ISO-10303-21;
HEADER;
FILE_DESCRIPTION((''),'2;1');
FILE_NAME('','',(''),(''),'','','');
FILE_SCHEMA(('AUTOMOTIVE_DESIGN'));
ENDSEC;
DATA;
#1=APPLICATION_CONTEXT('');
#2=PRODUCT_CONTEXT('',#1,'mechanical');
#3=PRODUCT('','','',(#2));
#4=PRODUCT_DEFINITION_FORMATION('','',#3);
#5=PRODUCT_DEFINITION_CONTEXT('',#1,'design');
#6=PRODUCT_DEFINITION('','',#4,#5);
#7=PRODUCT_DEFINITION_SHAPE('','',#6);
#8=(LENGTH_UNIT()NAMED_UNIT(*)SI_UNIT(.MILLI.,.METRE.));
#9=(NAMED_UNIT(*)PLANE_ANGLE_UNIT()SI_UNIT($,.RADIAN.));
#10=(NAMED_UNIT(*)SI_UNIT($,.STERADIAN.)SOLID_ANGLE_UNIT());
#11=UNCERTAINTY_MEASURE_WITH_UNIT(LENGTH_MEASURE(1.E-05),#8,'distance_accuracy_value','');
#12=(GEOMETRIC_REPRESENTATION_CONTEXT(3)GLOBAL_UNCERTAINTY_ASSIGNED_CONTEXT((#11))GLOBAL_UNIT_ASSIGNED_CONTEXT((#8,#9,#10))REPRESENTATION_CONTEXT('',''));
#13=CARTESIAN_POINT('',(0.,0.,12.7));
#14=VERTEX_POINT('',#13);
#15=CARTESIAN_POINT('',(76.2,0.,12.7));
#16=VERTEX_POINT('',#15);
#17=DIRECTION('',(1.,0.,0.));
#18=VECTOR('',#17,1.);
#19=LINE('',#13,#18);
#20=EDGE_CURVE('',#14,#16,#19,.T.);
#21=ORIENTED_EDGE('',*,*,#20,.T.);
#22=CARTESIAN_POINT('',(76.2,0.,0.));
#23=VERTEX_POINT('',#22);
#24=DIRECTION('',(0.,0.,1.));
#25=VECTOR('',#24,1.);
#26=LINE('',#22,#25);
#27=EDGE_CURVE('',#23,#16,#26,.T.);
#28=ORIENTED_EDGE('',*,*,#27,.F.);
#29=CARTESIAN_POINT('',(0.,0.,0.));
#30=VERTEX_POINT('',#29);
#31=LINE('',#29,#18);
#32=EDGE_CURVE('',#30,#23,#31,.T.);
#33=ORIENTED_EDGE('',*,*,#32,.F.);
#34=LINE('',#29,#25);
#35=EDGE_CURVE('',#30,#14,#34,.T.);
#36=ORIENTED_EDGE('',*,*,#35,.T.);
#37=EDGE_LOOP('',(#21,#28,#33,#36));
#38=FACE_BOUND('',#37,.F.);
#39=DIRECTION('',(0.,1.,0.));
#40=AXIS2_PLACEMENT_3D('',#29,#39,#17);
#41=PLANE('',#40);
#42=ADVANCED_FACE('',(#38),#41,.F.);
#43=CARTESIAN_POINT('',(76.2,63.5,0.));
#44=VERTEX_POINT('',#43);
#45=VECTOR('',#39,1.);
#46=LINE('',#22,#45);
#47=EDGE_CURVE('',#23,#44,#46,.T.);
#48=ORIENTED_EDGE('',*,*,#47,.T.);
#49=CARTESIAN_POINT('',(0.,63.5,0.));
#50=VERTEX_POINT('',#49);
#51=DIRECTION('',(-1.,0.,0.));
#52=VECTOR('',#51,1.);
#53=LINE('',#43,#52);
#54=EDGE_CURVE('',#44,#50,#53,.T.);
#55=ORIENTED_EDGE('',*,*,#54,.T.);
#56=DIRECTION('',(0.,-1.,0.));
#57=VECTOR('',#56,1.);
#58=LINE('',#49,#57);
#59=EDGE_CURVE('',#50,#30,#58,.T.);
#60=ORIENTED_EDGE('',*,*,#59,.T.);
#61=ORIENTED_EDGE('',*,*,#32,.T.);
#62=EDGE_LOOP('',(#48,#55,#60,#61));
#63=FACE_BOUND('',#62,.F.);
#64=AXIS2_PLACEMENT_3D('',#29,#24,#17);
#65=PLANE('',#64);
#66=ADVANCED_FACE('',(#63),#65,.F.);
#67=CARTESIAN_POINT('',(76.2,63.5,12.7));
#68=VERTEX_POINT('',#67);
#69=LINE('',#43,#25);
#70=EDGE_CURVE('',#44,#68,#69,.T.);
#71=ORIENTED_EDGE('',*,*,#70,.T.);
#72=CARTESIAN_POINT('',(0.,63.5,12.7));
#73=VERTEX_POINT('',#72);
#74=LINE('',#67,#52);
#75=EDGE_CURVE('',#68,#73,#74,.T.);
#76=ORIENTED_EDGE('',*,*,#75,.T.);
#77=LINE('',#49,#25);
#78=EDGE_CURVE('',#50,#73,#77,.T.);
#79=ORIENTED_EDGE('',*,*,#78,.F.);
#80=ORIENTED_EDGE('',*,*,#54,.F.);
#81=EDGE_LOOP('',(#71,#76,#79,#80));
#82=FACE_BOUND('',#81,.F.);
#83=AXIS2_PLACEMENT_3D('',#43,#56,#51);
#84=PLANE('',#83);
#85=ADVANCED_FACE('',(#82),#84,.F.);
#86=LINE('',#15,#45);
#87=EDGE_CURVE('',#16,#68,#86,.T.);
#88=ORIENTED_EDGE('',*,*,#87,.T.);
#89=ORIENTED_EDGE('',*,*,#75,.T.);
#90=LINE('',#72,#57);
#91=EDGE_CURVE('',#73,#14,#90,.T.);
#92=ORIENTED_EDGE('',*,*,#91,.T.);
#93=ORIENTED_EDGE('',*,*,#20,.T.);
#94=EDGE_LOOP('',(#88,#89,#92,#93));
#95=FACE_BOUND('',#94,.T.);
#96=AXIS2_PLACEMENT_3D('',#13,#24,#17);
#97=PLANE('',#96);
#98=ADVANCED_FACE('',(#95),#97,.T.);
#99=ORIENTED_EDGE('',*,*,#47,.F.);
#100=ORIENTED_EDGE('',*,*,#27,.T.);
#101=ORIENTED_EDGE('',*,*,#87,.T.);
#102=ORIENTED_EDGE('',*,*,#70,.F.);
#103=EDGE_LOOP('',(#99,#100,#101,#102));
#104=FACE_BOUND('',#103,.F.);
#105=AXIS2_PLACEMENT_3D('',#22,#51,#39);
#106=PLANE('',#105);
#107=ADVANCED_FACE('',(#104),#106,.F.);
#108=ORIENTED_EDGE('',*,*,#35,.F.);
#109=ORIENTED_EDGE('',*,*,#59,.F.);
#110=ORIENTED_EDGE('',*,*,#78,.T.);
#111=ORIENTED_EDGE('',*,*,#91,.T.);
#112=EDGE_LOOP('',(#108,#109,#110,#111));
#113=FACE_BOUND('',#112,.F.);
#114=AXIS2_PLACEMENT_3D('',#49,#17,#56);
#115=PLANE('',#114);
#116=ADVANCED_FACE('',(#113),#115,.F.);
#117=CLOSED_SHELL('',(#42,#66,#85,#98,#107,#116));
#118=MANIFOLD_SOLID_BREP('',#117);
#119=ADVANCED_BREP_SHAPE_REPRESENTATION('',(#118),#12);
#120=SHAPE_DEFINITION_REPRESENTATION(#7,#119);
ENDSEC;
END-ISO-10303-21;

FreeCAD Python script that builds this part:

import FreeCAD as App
import Part
import Sketcher
from FreeCAD import Vector
Q = App.Units.Quantity

doc = App.newDocument("Part")
body = doc.addObject("PartDesign::Body", "Body")

# Sketch on XY plane
sketch1 = doc.addObject("Sketcher::SketchObject", "Sketch")
body.addObject(sketch1)
sketch1.AttachmentSupport = (doc.XY_Plane, [""])
sketch1.MapMode = "FlatFace"
sketch1.addGeometry(Part.LineSegment(Vector(0, 64, 0), Vector(0, 0, 0)), False)
sketch1.addGeometry(Part.LineSegment(Vector(0, 0, 0), Vector(76, 0, 0)), False)
sketch1.addGeometry(Part.LineSegment(Vector(76, 0, 0), Vector(76, 64, 0)), False)
sketch1.addGeometry(Part.LineSegment(Vector(76, 64, 0), Vector(0, 64, 0)), False)
sketch1.addConstraint(Sketcher.Constraint("Coincident", 0, 2, 1, 1))
sketch1.addConstraint(Sketcher.Constraint("Coincident", 1, 2, 2, 1))
sketch1.addConstraint(Sketcher.Constraint("Coincident", 2, 2, 3, 1))
sketch1.addConstraint(Sketcher.Constraint("Coincident", 3, 2, 0, 1))
sketch1.addConstraint(Sketcher.Constraint("Vertical", 0))
sketch1.addConstraint(Sketcher.Constraint("Horizontal", 1))
sketch1.addConstraint(Sketcher.Constraint("Vertical", 2))
sketch1.addConstraint(Sketcher.Constraint("Horizontal", 3))
sketch1.addConstraint(Sketcher.Constraint("Coincident", 0, 2, -1, 1))
sketch1.addConstraint(Sketcher.Constraint("DistanceX", 1, 1, 1, 2, Q("3 in")))
sketch1.addConstraint(Sketcher.Constraint("DistanceY", 0, 2, 0, 1, Q("2.5 in")))
pad1 = doc.addObject("PartDesign::Pad", "Pad")
body.addObject(pad1)
pad1.Profile = sketch1
pad1.Length = Q("0.5 in")

doc.recompute()
